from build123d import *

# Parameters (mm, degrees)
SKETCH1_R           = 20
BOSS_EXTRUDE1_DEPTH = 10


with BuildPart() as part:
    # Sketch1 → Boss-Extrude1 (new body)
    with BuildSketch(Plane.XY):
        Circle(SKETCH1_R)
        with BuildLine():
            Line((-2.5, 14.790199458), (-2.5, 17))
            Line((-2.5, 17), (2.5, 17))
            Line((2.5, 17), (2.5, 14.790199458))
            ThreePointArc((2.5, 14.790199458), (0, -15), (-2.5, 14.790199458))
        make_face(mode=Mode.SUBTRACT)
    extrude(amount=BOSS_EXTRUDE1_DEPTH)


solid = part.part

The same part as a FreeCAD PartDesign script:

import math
import FreeCAD as App
import Part
import Sketcher
from FreeCAD import Vector

doc = App.newDocument("Part")
body = doc.addObject("PartDesign::Body", "Body")

# Sketch on XY plane
sketch1 = body.newObject("Sketcher::SketchObject", "Sketch")
sketch1.AttachmentSupport = (doc.getObject("XY_Plane"), [""])
sketch1.MapMode = "FlatFace"
sketch1.addGeometry(Part.Circle(Vector(0, 0, 0), Vector(0, 0, 1), 20), False)
sketch1.addGeometry(Part.ArcOfCircle(Part.Circle(Vector(0, 0, 0), Vector(0, 0, 1), 15), math.radians(100), math.radians(440)), False)
sketch1.addGeometry(Part.LineSegment(Vector(-2.5, 14.8, 0), Vector(-2.5, 17, 0)), False)
sketch1.addGeometry(Part.LineSegment(Vector(-2.5, 17, 0), Vector(2.5, 17, 0)), False)
sketch1.addGeometry(Part.LineSegment(Vector(2.5, 17, 0), Vector(2.5, 14.8, 0)), False)
sketch1.addConstraint(Sketcher.Constraint("Coincident", 1, 1, 2, 1))
sketch1.addConstraint(Sketcher.Constraint("Coincident", 2, 2, 3, 1))
sketch1.addConstraint(Sketcher.Constraint("Coincident", 3, 2, 4, 1))
sketch1.addConstraint(Sketcher.Constraint("Coincident", 4, 2, 1, 2))
sketch1.addConstraint(Sketcher.Constraint("Vertical", 2))
sketch1.addConstraint(Sketcher.Constraint("Horizontal", 3))
sketch1.addConstraint(Sketcher.Constraint("Vertical", 4))
sketch1.addConstraint(Sketcher.Constraint("Coincident", 0, 3, -1, 1))
sketch1.addConstraint(Sketcher.Constraint("Coincident", 1, 3, -1, 1))
sketch1.addConstraint(Sketcher.Constraint("Horizontal", 1, 1, 4, 2))
sketch1.addConstraint(Sketcher.Constraint("Diameter", 0, 40.0))
sketch1.addConstraint(Sketcher.Constraint("Radius", 1, 15.0))
sketch1.addConstraint(Sketcher.Constraint("DistanceX", 3, 1, 3, 2, 5.0))
sketch1.addConstraint(Sketcher.Constraint("DistanceY", -1, 1, 2, 2, 17.0))
pad1 = body.newObject("PartDesign::Pad", "Pad")
pad1.Profile = sketch1
pad1.Length = 10

doc.recompute()
